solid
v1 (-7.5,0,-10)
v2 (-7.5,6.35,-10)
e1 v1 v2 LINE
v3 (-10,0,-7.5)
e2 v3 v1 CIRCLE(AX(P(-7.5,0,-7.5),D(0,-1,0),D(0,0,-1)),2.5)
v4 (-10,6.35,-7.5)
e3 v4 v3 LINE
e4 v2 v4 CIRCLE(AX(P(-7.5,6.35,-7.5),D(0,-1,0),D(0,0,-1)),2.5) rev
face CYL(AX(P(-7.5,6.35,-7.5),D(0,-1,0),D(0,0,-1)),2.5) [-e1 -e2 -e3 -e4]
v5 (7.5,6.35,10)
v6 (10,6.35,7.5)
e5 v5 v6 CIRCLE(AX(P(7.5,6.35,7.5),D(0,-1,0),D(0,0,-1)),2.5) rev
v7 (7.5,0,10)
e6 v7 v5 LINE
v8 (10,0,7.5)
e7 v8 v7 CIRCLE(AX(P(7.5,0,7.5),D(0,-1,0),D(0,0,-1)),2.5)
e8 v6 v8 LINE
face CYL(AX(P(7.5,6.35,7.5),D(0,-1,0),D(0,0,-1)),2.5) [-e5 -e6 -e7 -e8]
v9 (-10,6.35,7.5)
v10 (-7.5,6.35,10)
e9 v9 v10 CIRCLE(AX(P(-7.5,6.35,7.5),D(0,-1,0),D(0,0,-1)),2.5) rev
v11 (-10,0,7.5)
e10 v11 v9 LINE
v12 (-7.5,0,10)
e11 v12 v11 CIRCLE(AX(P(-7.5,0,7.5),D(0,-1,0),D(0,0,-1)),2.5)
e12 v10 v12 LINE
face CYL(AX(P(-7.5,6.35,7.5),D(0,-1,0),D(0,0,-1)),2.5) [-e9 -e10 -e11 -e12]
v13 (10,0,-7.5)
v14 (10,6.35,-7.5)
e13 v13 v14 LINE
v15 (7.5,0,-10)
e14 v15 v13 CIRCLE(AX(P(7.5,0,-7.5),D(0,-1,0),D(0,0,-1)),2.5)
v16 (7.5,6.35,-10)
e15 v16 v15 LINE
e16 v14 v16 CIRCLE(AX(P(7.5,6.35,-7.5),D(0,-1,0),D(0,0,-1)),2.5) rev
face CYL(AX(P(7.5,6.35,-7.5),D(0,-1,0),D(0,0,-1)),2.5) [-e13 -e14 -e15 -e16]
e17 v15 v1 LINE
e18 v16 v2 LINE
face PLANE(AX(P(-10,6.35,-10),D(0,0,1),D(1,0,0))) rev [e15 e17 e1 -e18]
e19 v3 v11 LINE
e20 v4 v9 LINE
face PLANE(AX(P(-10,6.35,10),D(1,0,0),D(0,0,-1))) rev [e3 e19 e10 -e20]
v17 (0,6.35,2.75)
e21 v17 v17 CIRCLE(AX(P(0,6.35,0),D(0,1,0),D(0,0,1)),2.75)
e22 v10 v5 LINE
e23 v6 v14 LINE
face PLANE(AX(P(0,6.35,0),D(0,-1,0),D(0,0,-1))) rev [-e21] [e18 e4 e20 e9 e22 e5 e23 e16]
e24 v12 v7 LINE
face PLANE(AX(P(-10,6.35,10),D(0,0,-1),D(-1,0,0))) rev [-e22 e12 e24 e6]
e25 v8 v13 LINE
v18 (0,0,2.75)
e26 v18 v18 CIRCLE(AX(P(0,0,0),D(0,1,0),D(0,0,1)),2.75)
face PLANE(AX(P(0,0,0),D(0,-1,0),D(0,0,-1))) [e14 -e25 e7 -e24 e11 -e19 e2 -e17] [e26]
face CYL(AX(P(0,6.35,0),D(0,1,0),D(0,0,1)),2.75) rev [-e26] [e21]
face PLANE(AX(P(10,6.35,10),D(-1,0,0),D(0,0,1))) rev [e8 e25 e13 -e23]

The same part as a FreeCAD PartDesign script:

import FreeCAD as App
import Part
import Sketcher
from FreeCAD import Vector


def edges_at(feature, points):
    """Names of the edges that pass closest to the given points."""
    edges = feature.Shape.Edges
    near = lambda p: min(range(len(edges)), key=lambda i: edges[i].distToShape(Part.Vertex(*p))[0])
    return sorted({f"Edge{near(p) + 1}" for p in points})

doc = App.newDocument("Part")
body = doc.addObject("PartDesign::Body", "Body")

# Sketch on XZ plane
sketch1 = body.newObject("Sketcher::SketchObject", "Sketch")
sketch1.AttachmentSupport = (doc.getObject("XZ_Plane"), [""])
sketch1.MapMode = "FlatFace"
sketch1.addGeometry(Part.LineSegment(Vector(-10, -10, 0), Vector(-10, 10, 0)), False)
sketch1.addGeometry(Part.LineSegment(Vector(-10, 10, 0), Vector(10, 10, 0)), False)
sketch1.addGeometry(Part.LineSegment(Vector(10, 10, 0), Vector(10, -10, 0)), False)
sketch1.addGeometry(Part.LineSegment(Vector(10, -10, 0), Vector(-10, -10, 0)), False)
sketch1.addConstraint(Sketcher.Constraint("Coincident", 0, 2, 1, 1))
sketch1.addConstraint(Sketcher.Constraint("Coincident", 1, 2, 2, 1))
sketch1.addConstraint(Sketcher.Constraint("Coincident", 2, 2, 3, 1))
sketch1.addConstraint(Sketcher.Constraint("Coincident", 3, 2, 0, 1))
sketch1.addConstraint(Sketcher.Constraint("Vertical", 0))
sketch1.addConstraint(Sketcher.Constraint("Horizontal", 1))
sketch1.addConstraint(Sketcher.Constraint("Vertical", 2))
sketch1.addConstraint(Sketcher.Constraint("Horizontal", 3))
sketch1.addConstraint(Sketcher.Constraint("Symmetric", 0, 2, 2, 2, -1, 1))
sketch1.addConstraint(Sketcher.Constraint("Equal", 3, 0))
sketch1.addConstraint(Sketcher.Constraint("DistanceX", 1, 1, 1, 2, 20.0))
pad1 = body.newObject("PartDesign::Pad", "Pad")
pad1.Profile = sketch1
pad1.Length = 6.35
pad1.Reversed = True

# Sketch on XZ plane
sketch2 = body.newObject("Sketcher::SketchObject", "Sketch001")
sketch2.AttachmentSupport = (doc.getObject("XZ_Plane"), [""])
sketch2.MapMode = "FlatFace"
sketch2.AttachmentOffset = App.Placement(Vector(0, 0, -6.35), App.Rotation())
sketch2.addGeometry(Part.Circle(Vector(0, 0, 0), Vector(0, 0, 1), 2.8), False)
sketch2.addConstraint(Sketcher.Constraint("Coincident", 0, 3, -1, 1))
sketch2.addConstraint(Sketcher.Constraint("Diameter", 0, 5.5))
doc.recompute()
hole = body.newObject("PartDesign::Hole", "Hole")
hole.Profile = sketch2
hole.ThreadType = "None"
hole.Diameter = 5.5
hole.DepthType = "ThroughAll"
hole.Reversed = True
doc.recompute()

fillet = body.newObject("PartDesign::Fillet", "Fillet")
fillet.Base = (hole, edges_at(hole, [
    (10, 3.175, 10),
    (-10, 3.175, 10),
    (-10, 3.175, -10),
    (10, 3.175, -10),
]))
fillet.Radius = 2.5

doc.recompute()
